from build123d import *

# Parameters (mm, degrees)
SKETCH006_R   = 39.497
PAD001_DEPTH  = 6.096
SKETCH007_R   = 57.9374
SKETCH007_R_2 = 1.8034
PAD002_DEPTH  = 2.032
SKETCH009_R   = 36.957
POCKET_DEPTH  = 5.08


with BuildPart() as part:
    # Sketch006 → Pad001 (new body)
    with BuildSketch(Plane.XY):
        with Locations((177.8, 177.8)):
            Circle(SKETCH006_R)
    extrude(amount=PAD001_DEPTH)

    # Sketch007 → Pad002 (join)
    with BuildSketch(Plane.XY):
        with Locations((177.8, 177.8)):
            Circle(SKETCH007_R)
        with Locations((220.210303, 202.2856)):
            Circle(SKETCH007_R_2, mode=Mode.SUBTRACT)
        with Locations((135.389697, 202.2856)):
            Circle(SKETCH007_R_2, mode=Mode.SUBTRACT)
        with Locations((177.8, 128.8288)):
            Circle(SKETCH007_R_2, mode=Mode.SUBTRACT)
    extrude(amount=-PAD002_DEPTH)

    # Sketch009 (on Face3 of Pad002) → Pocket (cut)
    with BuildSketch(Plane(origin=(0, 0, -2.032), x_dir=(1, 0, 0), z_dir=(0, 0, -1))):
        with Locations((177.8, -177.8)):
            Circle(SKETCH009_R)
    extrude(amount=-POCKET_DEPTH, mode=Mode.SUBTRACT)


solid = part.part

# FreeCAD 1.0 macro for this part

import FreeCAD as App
import Part
import Sketcher
Q = App.Units.Quantity

doc = App.newDocument("Part")
body = doc.addObject("PartDesign::Body", "Body")

# Sketch on XY plane
sketch1 = body.newObject("Sketcher::SketchObject", "Sketch")
sketch1.AttachmentSupport = (doc.getObject("XY_Plane"), [""])
sketch1.MapMode = "FlatFace"
sketch1.addGeometry(Part.Circle(App.Vector(177.8, 177.8, 0), App.Vector(0, 0, 1), 39.497), False)
sketch1.addConstraint(Sketcher.Constraint("Diameter", 0, Q("3.11 in")))
sketch1.addConstraint(Sketcher.Constraint("DistanceX", -1, 1, 0, 3, Q("7 in")))
sketch1.addConstraint(Sketcher.Constraint("DistanceY", -1, 1, 0, 3, Q("7 in")))
pad1 = body.newObject("PartDesign::Pad", "Pad")
pad1.Profile = sketch1
pad1.Length = Q("0.24 in")

# Sketch on XY plane
sketch2 = body.newObject("Sketcher::SketchObject", "Sketch001")
sketch2.AttachmentSupport = (doc.getObject("XY_Plane"), [""])
sketch2.MapMode = "FlatFace"
sketch2.addGeometry(Part.Circle(App.Vector(177.8, 177.8, 0), App.Vector(0, 0, 1), 57.9374), False)
sketch2.addGeometry(Part.Circle(App.Vector(177.8, 128.8288, 0), App.Vector(0, 0, 1), 1.8034), False)
sketch2.addGeometry(Part.Circle(App.Vector(135.389697, 202.2856, 0), App.Vector(0, 0, 1), 1.8034), False)
sketch2.addGeometry(Part.Circle(App.Vector(220.210303, 202.2856, 0), App.Vector(0, 0, 1), 1.8034), False)
sketch2.addConstraint(Sketcher.Constraint("Equal", 1, 2))
sketch2.addConstraint(Sketcher.Constraint("Equal", 2, 3))
sketch2.addConstraint(Sketcher.Constraint("Horizontal", 2, 3, 3, 3))
sketch2.addConstraint(Sketcher.Constraint("Vertical", 0, 3, 1, 3))
sketch2.addConstraint(Sketcher.Constraint("Diameter", 0, Q("4.562 in")))
sketch2.addConstraint(Sketcher.Constraint("Diameter", 1, Q("0.142 in")))
sketch2.addConstraint(Sketcher.Constraint("DistanceX", -1, 1, 0, 3, Q("7 in")))
sketch2.addConstraint(Sketcher.Constraint("DistanceY", -1, 1, 0, 3, Q("7 in")))
sketch2.addConstraint(Sketcher.Constraint("DistanceY", -1, 1, 1, 3, Q("5.072 in")))
sketch2.addConstraint(Sketcher.Constraint("DistanceY", -1, 1, 2, 3, Q("7.964 in")))
sketch2.addConstraint(Sketcher.Constraint("DistanceX", -1, 1, 2, 3, Q("135.389697 mm")))
sketch2.addConstraint(Sketcher.Constraint("DistanceX", -1, 1, 3, 3, Q("220.210303 mm")))
pad2 = body.newObject("PartDesign::Pad", "Pad001")
pad2.Profile = sketch2
pad2.Length = Q("0.08 in")
pad2.Reversed = True

# Sketch on XY plane
sketch3 = body.newObject("Sketcher::SketchObject", "Sketch002")
sketch3.AttachmentSupport = (doc.getObject("XY_Plane"), [""])
sketch3.MapMode = "FlatFace"
sketch3.AttachmentOffset = App.Placement(App.Vector(0, 0, -0.08 * 25.4), App.Rotation())
sketch3.addGeometry(Part.Circle(App.Vector(177.8, 177.8, 0), App.Vector(0, 0, 1), 36.957), False)
sketch3.addConstraint(Sketcher.Constraint("Diameter", 0, Q("2.91 in")))
sketch3.addConstraint(Sketcher.Constraint("DistanceX", -1, 1, 0, 3, Q("7 in")))
sketch3.addConstraint(Sketcher.Constraint("DistanceY", -1, 1, 0, 3, Q("7 in")))
pocket1 = body.newObject("PartDesign::Pocket", "Pocket")
pocket1.Profile = sketch3
pocket1.Length = Q("0.2 in")
pocket1.Reversed = True

doc.recompute()
